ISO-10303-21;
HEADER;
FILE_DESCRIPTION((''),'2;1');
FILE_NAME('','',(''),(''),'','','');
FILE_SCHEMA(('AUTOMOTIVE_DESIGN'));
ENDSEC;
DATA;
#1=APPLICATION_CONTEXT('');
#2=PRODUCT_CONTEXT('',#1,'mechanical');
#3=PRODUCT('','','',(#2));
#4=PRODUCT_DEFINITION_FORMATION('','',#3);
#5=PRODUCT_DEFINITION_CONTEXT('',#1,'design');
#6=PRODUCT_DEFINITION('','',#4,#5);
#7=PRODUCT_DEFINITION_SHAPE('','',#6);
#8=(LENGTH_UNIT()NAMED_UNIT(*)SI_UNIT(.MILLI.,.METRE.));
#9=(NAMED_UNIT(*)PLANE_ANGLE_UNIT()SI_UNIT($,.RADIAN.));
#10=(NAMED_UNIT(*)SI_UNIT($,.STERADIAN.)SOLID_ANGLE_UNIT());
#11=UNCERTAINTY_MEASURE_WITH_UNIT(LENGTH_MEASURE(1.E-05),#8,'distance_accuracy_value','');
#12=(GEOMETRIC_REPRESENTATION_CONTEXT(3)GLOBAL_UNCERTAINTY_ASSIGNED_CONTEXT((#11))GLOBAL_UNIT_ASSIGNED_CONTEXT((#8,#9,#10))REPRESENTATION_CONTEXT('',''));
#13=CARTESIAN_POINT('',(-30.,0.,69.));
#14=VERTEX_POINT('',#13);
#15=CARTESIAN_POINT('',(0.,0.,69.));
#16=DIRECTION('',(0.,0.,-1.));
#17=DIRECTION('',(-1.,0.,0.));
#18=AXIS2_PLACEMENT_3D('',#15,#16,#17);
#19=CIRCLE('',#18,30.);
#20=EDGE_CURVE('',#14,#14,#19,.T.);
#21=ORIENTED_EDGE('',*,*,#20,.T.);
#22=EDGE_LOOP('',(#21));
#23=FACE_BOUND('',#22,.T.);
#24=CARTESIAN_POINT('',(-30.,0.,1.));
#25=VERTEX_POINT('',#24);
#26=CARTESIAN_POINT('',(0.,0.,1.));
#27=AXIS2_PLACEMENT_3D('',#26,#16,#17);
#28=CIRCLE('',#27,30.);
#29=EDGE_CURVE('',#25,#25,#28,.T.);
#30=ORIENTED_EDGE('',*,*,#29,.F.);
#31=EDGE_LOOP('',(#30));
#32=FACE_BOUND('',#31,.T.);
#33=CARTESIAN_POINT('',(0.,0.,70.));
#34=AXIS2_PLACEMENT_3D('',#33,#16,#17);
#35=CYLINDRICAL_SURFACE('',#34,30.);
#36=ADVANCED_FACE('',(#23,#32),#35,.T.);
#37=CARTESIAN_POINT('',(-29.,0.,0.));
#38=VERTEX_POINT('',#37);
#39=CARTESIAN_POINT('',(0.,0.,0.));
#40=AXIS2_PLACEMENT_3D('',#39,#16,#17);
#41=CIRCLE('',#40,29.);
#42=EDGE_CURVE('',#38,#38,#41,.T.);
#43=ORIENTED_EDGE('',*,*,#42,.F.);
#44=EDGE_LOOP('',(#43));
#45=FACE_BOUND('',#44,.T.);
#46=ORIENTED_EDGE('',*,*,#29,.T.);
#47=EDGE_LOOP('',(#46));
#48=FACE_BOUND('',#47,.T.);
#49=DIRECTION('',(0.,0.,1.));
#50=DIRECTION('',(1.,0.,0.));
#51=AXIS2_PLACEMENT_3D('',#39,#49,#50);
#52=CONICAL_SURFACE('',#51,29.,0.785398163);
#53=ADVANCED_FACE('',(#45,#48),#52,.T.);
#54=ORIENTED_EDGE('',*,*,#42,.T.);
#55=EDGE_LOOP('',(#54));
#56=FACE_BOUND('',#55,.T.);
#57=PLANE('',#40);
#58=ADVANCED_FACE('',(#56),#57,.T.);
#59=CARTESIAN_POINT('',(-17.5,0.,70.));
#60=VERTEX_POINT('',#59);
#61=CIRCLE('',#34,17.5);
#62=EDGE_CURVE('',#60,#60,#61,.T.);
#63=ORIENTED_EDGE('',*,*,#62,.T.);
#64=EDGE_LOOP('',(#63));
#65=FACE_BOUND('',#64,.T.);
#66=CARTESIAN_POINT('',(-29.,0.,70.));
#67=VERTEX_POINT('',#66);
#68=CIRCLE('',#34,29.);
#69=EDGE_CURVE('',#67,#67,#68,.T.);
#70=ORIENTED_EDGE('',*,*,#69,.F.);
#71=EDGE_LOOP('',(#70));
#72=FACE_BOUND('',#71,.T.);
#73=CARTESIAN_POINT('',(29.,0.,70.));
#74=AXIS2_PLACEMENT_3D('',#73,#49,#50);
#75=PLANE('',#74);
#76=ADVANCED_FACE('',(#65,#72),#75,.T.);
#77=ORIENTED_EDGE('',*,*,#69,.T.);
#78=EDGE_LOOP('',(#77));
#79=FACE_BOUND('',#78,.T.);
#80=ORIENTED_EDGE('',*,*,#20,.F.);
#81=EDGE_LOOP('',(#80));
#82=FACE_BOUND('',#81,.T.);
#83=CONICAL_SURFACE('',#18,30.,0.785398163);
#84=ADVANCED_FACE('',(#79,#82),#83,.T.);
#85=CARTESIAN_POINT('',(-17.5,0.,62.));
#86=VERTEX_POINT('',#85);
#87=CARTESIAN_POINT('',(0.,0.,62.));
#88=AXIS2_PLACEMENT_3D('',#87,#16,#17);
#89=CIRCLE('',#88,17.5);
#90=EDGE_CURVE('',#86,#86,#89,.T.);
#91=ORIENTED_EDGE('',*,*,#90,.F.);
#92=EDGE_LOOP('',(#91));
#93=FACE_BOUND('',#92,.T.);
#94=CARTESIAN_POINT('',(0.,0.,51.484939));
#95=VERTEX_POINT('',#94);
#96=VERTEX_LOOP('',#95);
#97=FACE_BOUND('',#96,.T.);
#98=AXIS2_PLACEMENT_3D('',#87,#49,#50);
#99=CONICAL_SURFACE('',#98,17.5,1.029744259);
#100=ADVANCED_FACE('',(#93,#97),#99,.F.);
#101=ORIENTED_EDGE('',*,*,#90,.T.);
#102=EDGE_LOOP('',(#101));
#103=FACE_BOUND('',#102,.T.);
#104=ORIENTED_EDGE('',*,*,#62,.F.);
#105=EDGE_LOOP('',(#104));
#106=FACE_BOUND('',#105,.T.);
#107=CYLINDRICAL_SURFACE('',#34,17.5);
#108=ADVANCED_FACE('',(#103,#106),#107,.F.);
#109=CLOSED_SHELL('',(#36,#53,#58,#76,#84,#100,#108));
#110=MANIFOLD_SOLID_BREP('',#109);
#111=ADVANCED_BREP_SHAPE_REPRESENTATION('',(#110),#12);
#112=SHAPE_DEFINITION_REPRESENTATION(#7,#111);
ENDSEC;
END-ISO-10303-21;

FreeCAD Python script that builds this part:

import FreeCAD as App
import Part
import Sketcher
from FreeCAD import Vector
Q = App.Units.Quantity

doc = App.newDocument("Part")
body = doc.addObject("PartDesign::Body", "Body")

sketch1 = body.newObject("Sketcher::SketchObject", "Sketch")
sketch1.AttachmentSupport = (doc.getObject("XZ_Plane"), [""])
sketch1.MapMode = "FlatFace"
sketch1.addGeometry([
    Part.LineSegment(Vector(17.5, 62, 0), Vector(0, 51.5, 0)),
    Part.LineSegment(Vector(0, 51.5, 0), Vector(0, 0, 0)),
    Part.LineSegment(Vector(0, 0, 0), Vector(29, 0, 0)),
    Part.LineSegment(Vector(29, 0, 0), Vector(30, 1, 0)),
    Part.LineSegment(Vector(30, 1, 0), Vector(30, 69, 0)),
    Part.LineSegment(Vector(30, 69, 0), Vector(29, 70, 0)),
    Part.LineSegment(Vector(29, 70, 0), Vector(17.5, 70, 0)),
    Part.LineSegment(Vector(17.5, 70, 0), Vector(17.5, 62, 0)),
], False)
sketch1.addConstraint([
    Sketcher.Constraint("Coincident", 0, 2, 1, 1),
    Sketcher.Constraint("Coincident", 1, 2, 2, 1),
    Sketcher.Constraint("Coincident", 2, 2, 3, 1),
    Sketcher.Constraint("Coincident", 3, 2, 4, 1),
    Sketcher.Constraint("Coincident", 4, 2, 5, 1),
    Sketcher.Constraint("Coincident", 5, 2, 6, 1),
    Sketcher.Constraint("Coincident", 6, 2, 7, 1),
    Sketcher.Constraint("Coincident", 7, 2, 0, 1),
    Sketcher.Constraint("Vertical", 1),
    Sketcher.Constraint("Horizontal", 2),
    Sketcher.Constraint("Vertical", 4),
    Sketcher.Constraint("Horizontal", 6),
    Sketcher.Constraint("Vertical", 7),
    Sketcher.Constraint("Coincident", 1, 2, -1, 1),
    Sketcher.Constraint("Perpendicular", 3, 5),
    Sketcher.Constraint("Vertical", 2, 2, 5, 2),
    Sketcher.Constraint("Equal", 3, 5),
    Sketcher.Constraint("DistanceX", 2, 1, 2, 2, 29.0),
    Sketcher.Constraint("DistanceY", 4, 1, 4, 2, 68.0),
    Sketcher.Constraint("DistanceY", 7, 2, 7, 1, 8.0),
    Sketcher.Constraint("Angle", 0, Q("-149 deg")),
    Sketcher.Constraint("DistanceX", 6, 2, 6, 1, 11.5),
    Sketcher.Constraint("DistanceX", -1, 1, 3, 2, 30.0),
])
revolution = body.newObject("PartDesign::Revolution", "Revolution")
revolution.Profile = sketch1
revolution.ReferenceAxis = (sketch1, ["V_Axis"])
revolution.Angle = 360

doc.recompute()
